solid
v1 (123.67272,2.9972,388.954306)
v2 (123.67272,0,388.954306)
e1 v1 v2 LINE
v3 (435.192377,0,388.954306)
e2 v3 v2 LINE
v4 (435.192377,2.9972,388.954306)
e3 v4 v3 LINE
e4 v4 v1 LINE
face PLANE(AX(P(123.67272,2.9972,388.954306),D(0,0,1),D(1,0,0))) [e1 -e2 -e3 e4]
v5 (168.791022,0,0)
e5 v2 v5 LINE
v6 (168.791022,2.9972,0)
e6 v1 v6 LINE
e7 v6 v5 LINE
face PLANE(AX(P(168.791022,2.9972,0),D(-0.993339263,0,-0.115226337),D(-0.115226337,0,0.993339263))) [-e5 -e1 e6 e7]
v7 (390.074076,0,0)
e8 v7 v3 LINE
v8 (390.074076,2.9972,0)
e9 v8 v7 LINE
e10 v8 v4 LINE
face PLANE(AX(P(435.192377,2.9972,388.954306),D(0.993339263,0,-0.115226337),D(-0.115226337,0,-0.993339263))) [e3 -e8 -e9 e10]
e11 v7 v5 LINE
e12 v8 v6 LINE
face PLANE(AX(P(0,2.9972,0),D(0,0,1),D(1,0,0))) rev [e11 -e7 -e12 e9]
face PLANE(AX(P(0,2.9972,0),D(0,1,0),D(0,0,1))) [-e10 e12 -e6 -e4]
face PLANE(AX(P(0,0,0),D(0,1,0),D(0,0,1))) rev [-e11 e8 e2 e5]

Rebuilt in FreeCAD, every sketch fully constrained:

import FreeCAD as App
import Part
import Sketcher
from FreeCAD import Vector
Q = App.Units.Quantity

doc = App.newDocument("Part")
body = doc.addObject("PartDesign::Body", "Body")

# Sketch on XZ plane
sketch1 = body.newObject("Sketcher::SketchObject", "Sketch")
sketch1.AttachmentSupport = (doc.getObject("XZ_Plane"), [""])
sketch1.MapMode = "FlatFace"
sketch1.addGeometry([
    Part.LineSegment(Vector(0, 0, 0), Vector(0, 500, 0)),
    Part.LineSegment(Vector(0, 500, 0), Vector(500, 500, 0)),
    Part.LineSegment(Vector(500, 500, 0), Vector(500, 0, 0)),
    Part.LineSegment(Vector(500, 0, 0), Vector(0, 0, 0)),
], False)
sketch1.addConstraint([
    Sketcher.Constraint("Coincident", 0, 2, 1, 1),
    Sketcher.Constraint("Coincident", 1, 2, 2, 1),
    Sketcher.Constraint("Coincident", 2, 2, 3, 1),
    Sketcher.Constraint("Coincident", 3, 2, 0, 1),
    Sketcher.Constraint("Vertical", 0),
    Sketcher.Constraint("Horizontal", 1),
    Sketcher.Constraint("Vertical", 2),
    Sketcher.Constraint("Horizontal", 3),
    Sketcher.Constraint("Coincident", 3, 2, -1, 1),
    Sketcher.Constraint("Equal", 3, 0),
    Sketcher.Constraint("DistanceX", 1, 1, 1, 2, Q("500 mm")),
])
pad1 = body.newObject("PartDesign::Pad", "Pad")
pad1.Profile = sketch1
pad1.Length = 2.9972
pad1.Reversed = True

# Sketch on XZ plane
sketch2 = body.newObject("Sketcher::SketchObject", "Sketch001")
sketch2.AttachmentSupport = (doc.getObject("XZ_Plane"), [""])
sketch2.MapMode = "FlatFace"
sketch2.addGeometry([
    Part.LineSegment(Vector(-72, 572, 0), Vector(-72, -72, 0)),  # 0
    Part.LineSegment(Vector(-72, -72, 0), Vector(572, -72, 0)),  # 1
    Part.LineSegment(Vector(572, -72, 0), Vector(572, 572, 0)),  # 2
    Part.LineSegment(Vector(572, 572, 0), Vector(-72, 572, 0)),  # 3
    Part.LineSegment(Vector(390, 0, 0), Vector(169, 0, 0)),  # 4
    Part.LineSegment(Vector(169, 0, 0), Vector(124, 389, 0)),  # 5
    Part.LineSegment(Vector(124, 389, 0), Vector(435, 389, 0)),  # 6
    Part.LineSegment(Vector(435, 389, 0), Vector(390, 0, 0)),  # 7
], False)
sketch2.addConstraint([
    Sketcher.Constraint("Coincident", 0, 2, 1, 1),
    Sketcher.Constraint("Coincident", 1, 2, 2, 1),
    Sketcher.Constraint("Coincident", 2, 2, 3, 1),
    Sketcher.Constraint("Coincident", 3, 2, 0, 1),
    Sketcher.Constraint("Coincident", 4, 2, 5, 1),
    Sketcher.Constraint("Coincident", 5, 2, 6, 1),
    Sketcher.Constraint("Coincident", 6, 2, 7, 1),
    Sketcher.Constraint("Coincident", 7, 2, 4, 1),
    Sketcher.Constraint("Vertical", 0),
    Sketcher.Constraint("Horizontal", 1),
    Sketcher.Constraint("Vertical", 2),
    Sketcher.Constraint("Horizontal", 3),
    Sketcher.Constraint("Horizontal", 4),
    Sketcher.Constraint("Horizontal", 6),
    Sketcher.Constraint("PointOnObject", 4, 2, -1),
    Sketcher.Constraint("Equal", 3, 0),
    Sketcher.Constraint("Equal", 5, 7),
    Sketcher.Constraint("DistanceX", 1, 1, 1, 2, Q("643.422 mm")),
    Sketcher.Constraint("DistanceX", 0, 2, -1, 1, Q("71.711 mm")),
    Sketcher.Constraint("DistanceY", 0, 2, -1, 1, Q("71.711 mm")),
    Sketcher.Constraint("Distance", 5, Q("391.5624 mm")),
    Sketcher.Constraint("DistanceX", 5, 2, 4, 2, Q("45.118301 mm")),
    Sketcher.Constraint("DistanceX", 4, 2, 4, 1, Q("221.283054 mm")),
    Sketcher.Constraint("DistanceX", -1, 1, 4, 2, Q("168.791022 mm")),
])
pocket1 = body.newObject("PartDesign::Pocket", "Pocket")
pocket1.Profile = sketch2
pocket1.Type = "ThroughAll"

doc.recompute()
